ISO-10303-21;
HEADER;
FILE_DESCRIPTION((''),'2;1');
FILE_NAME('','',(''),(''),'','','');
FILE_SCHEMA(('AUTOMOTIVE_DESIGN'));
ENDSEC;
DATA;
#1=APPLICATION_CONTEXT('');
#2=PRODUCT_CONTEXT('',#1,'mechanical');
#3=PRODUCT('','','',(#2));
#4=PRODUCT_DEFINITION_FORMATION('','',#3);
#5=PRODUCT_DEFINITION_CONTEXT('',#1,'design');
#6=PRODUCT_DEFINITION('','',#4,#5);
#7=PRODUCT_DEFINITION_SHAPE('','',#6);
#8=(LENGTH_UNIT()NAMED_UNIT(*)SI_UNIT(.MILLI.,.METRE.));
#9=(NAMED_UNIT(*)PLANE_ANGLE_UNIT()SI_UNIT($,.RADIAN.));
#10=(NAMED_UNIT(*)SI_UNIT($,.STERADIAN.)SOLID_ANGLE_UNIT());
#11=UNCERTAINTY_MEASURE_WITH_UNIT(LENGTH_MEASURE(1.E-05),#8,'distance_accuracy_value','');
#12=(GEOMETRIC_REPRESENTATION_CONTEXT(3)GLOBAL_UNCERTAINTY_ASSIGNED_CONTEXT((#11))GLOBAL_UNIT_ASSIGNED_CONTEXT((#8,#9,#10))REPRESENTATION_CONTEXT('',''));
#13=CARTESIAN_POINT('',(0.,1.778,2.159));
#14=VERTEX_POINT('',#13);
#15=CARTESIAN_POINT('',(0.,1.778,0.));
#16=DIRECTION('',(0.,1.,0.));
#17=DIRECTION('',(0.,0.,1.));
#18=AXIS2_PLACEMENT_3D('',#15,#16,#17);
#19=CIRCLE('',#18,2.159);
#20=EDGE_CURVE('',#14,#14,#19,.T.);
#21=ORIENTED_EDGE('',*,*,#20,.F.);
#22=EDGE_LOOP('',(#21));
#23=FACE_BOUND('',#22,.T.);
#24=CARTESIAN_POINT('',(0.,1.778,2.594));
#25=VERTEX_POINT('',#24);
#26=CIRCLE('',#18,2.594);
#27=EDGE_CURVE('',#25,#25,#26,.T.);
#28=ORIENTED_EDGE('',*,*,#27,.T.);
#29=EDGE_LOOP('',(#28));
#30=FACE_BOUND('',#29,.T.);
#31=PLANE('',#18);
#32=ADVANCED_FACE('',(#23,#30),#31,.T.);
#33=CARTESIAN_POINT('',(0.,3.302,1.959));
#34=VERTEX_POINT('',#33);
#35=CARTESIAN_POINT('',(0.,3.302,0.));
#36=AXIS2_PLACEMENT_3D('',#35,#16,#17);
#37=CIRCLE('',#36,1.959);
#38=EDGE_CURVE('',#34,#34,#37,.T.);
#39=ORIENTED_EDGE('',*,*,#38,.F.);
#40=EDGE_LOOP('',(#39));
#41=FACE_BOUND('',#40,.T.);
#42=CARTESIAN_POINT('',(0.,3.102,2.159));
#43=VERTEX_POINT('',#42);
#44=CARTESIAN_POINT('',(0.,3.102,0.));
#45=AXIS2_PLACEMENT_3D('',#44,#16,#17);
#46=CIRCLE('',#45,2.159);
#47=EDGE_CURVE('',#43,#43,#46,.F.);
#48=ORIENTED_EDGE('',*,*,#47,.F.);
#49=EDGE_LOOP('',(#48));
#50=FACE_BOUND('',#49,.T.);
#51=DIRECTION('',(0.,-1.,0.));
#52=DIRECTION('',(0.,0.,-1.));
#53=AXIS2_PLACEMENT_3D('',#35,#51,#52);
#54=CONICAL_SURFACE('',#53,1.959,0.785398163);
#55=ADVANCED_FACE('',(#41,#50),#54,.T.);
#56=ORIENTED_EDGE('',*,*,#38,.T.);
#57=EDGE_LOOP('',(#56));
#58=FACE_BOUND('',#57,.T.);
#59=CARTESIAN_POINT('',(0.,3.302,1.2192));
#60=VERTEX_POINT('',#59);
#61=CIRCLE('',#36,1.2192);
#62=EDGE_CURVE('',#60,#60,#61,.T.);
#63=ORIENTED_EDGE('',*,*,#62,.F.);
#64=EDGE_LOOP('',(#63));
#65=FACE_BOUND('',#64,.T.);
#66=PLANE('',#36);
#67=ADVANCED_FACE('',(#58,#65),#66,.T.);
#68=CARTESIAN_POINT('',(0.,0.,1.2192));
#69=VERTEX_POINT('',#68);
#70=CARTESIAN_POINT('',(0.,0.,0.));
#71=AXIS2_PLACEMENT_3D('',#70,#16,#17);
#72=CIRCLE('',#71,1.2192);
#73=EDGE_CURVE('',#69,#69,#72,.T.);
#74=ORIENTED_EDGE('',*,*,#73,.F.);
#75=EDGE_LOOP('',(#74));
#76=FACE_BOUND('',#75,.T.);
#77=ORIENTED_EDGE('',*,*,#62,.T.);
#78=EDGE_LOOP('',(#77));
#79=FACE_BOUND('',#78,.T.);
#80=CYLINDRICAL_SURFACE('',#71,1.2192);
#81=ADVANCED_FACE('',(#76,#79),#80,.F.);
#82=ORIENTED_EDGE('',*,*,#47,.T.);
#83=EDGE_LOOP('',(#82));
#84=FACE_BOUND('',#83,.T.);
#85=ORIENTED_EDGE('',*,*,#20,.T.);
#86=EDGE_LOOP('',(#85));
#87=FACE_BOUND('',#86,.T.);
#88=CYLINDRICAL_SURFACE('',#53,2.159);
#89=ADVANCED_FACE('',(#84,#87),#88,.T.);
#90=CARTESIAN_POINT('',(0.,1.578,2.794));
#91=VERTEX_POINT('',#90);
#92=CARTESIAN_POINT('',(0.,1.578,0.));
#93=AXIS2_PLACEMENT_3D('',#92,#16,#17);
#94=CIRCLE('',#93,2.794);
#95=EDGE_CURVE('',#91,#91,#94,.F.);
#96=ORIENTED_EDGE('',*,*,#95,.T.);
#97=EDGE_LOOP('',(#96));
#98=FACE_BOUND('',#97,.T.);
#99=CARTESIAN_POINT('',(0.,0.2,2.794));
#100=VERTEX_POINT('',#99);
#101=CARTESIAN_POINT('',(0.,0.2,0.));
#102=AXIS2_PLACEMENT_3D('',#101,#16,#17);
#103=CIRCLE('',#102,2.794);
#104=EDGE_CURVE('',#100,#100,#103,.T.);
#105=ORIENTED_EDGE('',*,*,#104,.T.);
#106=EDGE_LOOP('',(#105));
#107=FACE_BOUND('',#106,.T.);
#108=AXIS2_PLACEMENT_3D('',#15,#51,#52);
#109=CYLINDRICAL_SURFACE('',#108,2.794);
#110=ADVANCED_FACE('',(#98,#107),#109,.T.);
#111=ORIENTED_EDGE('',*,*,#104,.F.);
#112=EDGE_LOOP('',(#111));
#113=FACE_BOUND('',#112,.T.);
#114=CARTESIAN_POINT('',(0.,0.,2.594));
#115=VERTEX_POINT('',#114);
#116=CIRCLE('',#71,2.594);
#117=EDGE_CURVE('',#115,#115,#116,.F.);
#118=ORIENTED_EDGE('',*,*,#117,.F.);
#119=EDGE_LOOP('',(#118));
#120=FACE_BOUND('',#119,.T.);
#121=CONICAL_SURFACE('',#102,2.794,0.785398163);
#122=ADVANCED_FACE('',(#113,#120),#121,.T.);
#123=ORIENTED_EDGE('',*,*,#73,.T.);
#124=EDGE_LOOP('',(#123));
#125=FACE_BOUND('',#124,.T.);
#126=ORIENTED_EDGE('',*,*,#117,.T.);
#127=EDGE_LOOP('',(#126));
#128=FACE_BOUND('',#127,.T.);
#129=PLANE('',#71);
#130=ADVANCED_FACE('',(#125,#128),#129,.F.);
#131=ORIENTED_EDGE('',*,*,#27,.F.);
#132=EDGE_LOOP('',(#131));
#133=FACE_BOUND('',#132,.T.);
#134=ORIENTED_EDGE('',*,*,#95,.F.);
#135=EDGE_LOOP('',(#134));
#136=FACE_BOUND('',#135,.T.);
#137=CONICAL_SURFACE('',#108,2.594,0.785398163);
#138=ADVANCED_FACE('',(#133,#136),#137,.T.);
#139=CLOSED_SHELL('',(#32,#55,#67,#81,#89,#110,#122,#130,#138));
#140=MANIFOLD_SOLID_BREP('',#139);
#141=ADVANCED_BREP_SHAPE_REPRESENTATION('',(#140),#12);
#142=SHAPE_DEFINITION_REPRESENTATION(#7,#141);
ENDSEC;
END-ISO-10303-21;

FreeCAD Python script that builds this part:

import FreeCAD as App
import Part
import Sketcher

V = App.Vector
Q = App.Units.Quantity


def edges_at(feature, points):
    """Names of the edges that pass closest to the given points."""
    edges = feature.Shape.Edges
    near = lambda p: min(range(len(edges)), key=lambda i: edges[i].distToShape(Part.Vertex(*p))[0])
    return sorted({f"Edge{near(p) + 1}" for p in points})

doc = App.newDocument("Part")
params = doc.addObject("Spreadsheet::Sheet", "Params")
for row, (alias, value) in enumerate([
    ("sketch1_diameter", "0.22 in"),
    ("pad1_length", "0.07 in"),
    ("chamfer_size", "0.2 mm"),
    ("sketch2_diameter", "0.17 in"),
    ("pad2_length", "0.06 in"),
    ("chamfer2_size", "0.2 mm"),
    ("sketch3_diameter", "0.096 in"),
], start=1):
    params.set(f"A{row}", alias)
    params.set(f"B{row}", "=" + value)
    params.setAlias(f"B{row}", alias)

body = doc.addObject("PartDesign::Body", "Body")

# Sketch on XZ plane
sketch1 = body.newObject("Sketcher::SketchObject", "Sketch")
sketch1.AttachmentSupport = (doc.getObject("XZ_Plane"), [""])
sketch1.MapMode = "FlatFace"
sketch1.addGeometry(Part.Circle(V(0, 0, 0), V(0, 0, 1), 2.794), False)
sketch1.addConstraint([
    Sketcher.Constraint("Coincident", 0, 3, -1, 1),
    Sketcher.Constraint("Diameter", 0, Q("0.22 in")),
])
sketch1.setExpression("Constraints[1]", "Params.sketch1_diameter")
pad1 = body.newObject("PartDesign::Pad", "Pad")
pad1.Profile = sketch1
pad1.setExpression("Length", "Params.pad1_length")
pad1.Reversed = True
doc.recompute()

chamfer = body.newObject("PartDesign::Chamfer", "Chamfer")
chamfer.Base = (pad1, edges_at(pad1, [(-2.794, 0, 0), (-2.794, 1.778, 0)]))
chamfer.setExpression("Size", "Params.chamfer_size")

# Sketch on XZ plane
sketch2 = body.newObject("Sketcher::SketchObject", "Sketch001")
sketch2.AttachmentSupport = (doc.getObject("XZ_Plane"), [""])
sketch2.MapMode = "FlatFace"
sketch2.AttachmentOffset = App.Placement(V(0, 0, -0.07 * 25.4), App.Rotation())
sketch2.addGeometry(Part.Circle(V(0, 0, 0), V(0, 0, 1), 2.159), False)
sketch2.addConstraint([
    Sketcher.Constraint("Coincident", 0, 3, -1, 1),
    Sketcher.Constraint("Diameter", 0, Q("0.17 in")),
])
sketch2.setExpression("Constraints[1]", "Params.sketch2_diameter")
pad2 = body.newObject("PartDesign::Pad", "Pad001")
pad2.Profile = sketch2
pad2.setExpression("Length", "Params.pad2_length")
pad2.Reversed = True
doc.recompute()

chamfer2 = body.newObject("PartDesign::Chamfer", "Chamfer001")
chamfer2.Base = (pad2, edges_at(pad2, [(-2.159, 3.302, 0)]))
chamfer2.setExpression("Size", "Params.chamfer2_size")

# Sketch on XZ plane
sketch3 = body.newObject("Sketcher::SketchObject", "Sketch002")
sketch3.AttachmentSupport = (doc.getObject("XZ_Plane"), [""])
sketch3.MapMode = "FlatFace"
sketch3.AttachmentOffset = App.Placement(V(0, 0, -0.13 * 25.4), App.Rotation())
sketch3.addGeometry(Part.Circle(V(0, 0, 0), V(0, 0, 1), 1.2192), False)
sketch3.addConstraint([
    Sketcher.Constraint("Coincident", 0, 3, -1, 1),
    Sketcher.Constraint("Diameter", 0, Q("0.096 in")),
])
sketch3.setExpression("Constraints[1]", "Params.sketch3_diameter")
pocket1 = body.newObject("PartDesign::Pocket", "Pocket")
pocket1.Profile = sketch3
pocket1.Type = "ThroughAll"
pocket1.Reversed = True

doc.recompute()
